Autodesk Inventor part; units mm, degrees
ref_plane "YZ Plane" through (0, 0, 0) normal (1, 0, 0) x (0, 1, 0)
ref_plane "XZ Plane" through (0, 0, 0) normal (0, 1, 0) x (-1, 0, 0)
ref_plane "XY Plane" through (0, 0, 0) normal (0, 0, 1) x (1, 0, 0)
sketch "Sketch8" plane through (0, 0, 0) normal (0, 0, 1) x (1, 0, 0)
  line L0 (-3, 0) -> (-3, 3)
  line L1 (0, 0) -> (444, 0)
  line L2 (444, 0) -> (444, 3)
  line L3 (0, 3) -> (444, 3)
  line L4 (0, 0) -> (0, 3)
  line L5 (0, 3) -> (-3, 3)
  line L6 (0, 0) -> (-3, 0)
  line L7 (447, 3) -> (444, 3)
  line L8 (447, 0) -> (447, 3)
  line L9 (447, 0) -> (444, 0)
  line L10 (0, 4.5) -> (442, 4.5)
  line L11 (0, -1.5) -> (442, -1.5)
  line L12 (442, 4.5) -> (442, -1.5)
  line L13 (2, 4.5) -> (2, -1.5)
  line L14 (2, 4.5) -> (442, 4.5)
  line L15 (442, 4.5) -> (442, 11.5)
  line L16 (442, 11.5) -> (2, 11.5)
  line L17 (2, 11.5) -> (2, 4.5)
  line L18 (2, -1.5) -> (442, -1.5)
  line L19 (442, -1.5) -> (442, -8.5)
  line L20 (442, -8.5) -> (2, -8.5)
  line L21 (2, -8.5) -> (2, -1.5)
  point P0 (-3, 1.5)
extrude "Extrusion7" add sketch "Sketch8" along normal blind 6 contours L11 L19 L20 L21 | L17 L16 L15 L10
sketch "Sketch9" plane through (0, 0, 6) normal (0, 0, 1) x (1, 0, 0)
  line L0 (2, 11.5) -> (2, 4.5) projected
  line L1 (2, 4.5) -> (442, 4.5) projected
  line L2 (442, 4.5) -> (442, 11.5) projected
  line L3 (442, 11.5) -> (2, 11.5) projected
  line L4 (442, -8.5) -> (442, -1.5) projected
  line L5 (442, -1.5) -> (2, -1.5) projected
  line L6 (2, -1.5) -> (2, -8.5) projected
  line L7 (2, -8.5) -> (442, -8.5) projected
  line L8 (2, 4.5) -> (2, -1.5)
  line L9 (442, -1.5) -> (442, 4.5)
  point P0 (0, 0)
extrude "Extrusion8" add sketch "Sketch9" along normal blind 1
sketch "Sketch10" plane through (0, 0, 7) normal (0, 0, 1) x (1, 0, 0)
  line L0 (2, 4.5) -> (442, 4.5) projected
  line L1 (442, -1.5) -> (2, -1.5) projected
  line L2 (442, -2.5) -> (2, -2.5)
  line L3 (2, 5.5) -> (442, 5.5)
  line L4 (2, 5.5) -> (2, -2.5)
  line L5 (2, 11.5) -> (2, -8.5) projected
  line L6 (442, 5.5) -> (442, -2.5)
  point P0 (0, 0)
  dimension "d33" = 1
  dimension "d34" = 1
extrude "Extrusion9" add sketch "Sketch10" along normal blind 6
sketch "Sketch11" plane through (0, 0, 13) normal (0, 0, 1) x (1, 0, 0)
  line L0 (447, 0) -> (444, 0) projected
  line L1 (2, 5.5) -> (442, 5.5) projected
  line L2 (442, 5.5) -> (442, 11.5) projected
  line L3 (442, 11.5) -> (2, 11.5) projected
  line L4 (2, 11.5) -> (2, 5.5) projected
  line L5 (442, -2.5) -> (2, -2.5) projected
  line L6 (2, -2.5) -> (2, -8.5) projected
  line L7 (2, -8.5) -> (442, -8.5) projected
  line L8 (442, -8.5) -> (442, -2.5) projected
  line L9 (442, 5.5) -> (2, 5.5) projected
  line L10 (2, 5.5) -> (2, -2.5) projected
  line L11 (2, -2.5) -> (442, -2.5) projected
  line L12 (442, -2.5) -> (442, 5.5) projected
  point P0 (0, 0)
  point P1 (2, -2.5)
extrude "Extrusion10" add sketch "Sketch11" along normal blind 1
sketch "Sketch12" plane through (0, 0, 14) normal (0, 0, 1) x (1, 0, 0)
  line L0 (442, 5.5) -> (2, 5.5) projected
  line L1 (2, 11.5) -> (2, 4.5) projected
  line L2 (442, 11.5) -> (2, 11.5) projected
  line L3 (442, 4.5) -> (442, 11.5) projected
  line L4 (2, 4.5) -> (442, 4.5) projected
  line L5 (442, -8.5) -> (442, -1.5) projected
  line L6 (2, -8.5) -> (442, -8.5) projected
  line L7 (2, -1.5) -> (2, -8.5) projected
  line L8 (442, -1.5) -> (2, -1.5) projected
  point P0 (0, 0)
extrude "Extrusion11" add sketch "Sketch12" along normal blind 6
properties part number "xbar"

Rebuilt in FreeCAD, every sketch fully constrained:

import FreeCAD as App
import Part
import Sketcher


def add_polygon(sketch, points):
    """Adds a closed chain of lines whose ends are joined by coincident constraints."""
    first, n = sketch.GeometryCount, len(points)
    for a, b in zip(points, points[1:] + points[:1]):
        sketch.addGeometry(Part.LineSegment(App.Vector(*a, 0), App.Vector(*b, 0)), False)
    for i in range(n):
        sketch.addConstraint(Sketcher.Constraint("Coincident", first + i, 2, first + (i + 1) % n, 1))

doc = App.newDocument("Part")
body = doc.addObject("PartDesign::Body", "Body")
body.AllowCompound = True

# Sketch on XY plane
sketch1 = doc.addObject("Sketcher::SketchObject", "Sketch")
body.addObject(sketch1)
sketch1.AttachmentSupport = (doc.XY_Plane, [""])
sketch1.MapMode = "FlatFace"
add_polygon(sketch1, [(442, -2), (2, -2), (2, -8), (442, -8)])  # lines 0-3
add_polygon(sketch1, [(2, 12), (2, 4), (442, 4), (442, 12)])  # lines 4-7
sketch1.addConstraint([
    Sketcher.Constraint("Horizontal", 0),
    Sketcher.Constraint("Vertical", 1),
    Sketcher.Constraint("Horizontal", 2),
    Sketcher.Constraint("Vertical", 3),
    Sketcher.Constraint("Vertical", 4),
    Sketcher.Constraint("Horizontal", 5),
    Sketcher.Constraint("Vertical", 6),
    Sketcher.Constraint("Horizontal", 7),
    Sketcher.Constraint("Vertical", 1, 2, 4, 2),
    Sketcher.Constraint("Vertical", 3, 2, 5, 2),
    Sketcher.Constraint("Equal", 3, 4),
    Sketcher.Constraint("DistanceX", 0, 2, 0, 1, 440.0),
    Sketcher.Constraint("DistanceY", 1, 2, 1, 1, 7.0),
    Sketcher.Constraint("DistanceX", -1, 1, 0, 2, 2.0),
    Sketcher.Constraint("DistanceY", 0, 2, 4, 2, 6.0),
    Sketcher.Constraint("DistanceY", 0, 2, -1, 1, 1.5),
])
pad1 = doc.addObject("PartDesign::Pad", "Pad")
body.addObject(pad1)
pad1.Profile = sketch1
pad1.Length = 6

# Sketch on XY plane
sketch2 = doc.addObject("Sketcher::SketchObject", "Sketch001")
body.addObject(sketch2)
sketch2.AttachmentSupport = (doc.XY_Plane, [""])
sketch2.MapMode = "FlatFace"
sketch2.AttachmentOffset = App.Placement(App.Vector(0, 0, 6), App.Rotation())
add_polygon(sketch2, [(442, 12), (2, 12), (2, -8), (442, -8)])  # lines 0-3
sketch2.addConstraint([
    Sketcher.Constraint("Horizontal", 0),
    Sketcher.Constraint("Vertical", 1),
    Sketcher.Constraint("Horizontal", 2),
    Sketcher.Constraint("Vertical", 3),
    Sketcher.Constraint("DistanceX", 0, 2, 0, 1, 440.0),
    Sketcher.Constraint("DistanceY", 1, 2, 1, 1, 20.0),
    Sketcher.Constraint("DistanceX", -1, 1, 0, 2, 2.0),
    Sketcher.Constraint("DistanceY", -1, 1, 0, 2, 11.5),
])
pad2 = doc.addObject("PartDesign::Pad", "Pad001")
body.addObject(pad2)
pad2.Profile = sketch2
pad2.Length = 1

# Sketch on XY plane
sketch3 = doc.addObject("Sketcher::SketchObject", "Sketch002")
body.addObject(sketch3)
sketch3.AttachmentSupport = (doc.XY_Plane, [""])
sketch3.MapMode = "FlatFace"
sketch3.AttachmentOffset = App.Placement(App.Vector(0, 0, 7), App.Rotation())
add_polygon(sketch3, [(2, 6), (2, -2), (442, -2), (442, 6)])  # lines 0-3
sketch3.addConstraint([
    Sketcher.Constraint("Vertical", 0),
    Sketcher.Constraint("Horizontal", 1),
    Sketcher.Constraint("Vertical", 2),
    Sketcher.Constraint("Horizontal", 3),
    Sketcher.Constraint("DistanceX", 1, 1, 1, 2, 440.0),
    Sketcher.Constraint("DistanceY", 0, 2, 0, 1, 8.0),
    Sketcher.Constraint("DistanceX", -1, 1, 0, 2, 2.0),
    Sketcher.Constraint("DistanceY", 0, 2, -1, 1, 2.5),
])
pad3 = doc.addObject("PartDesign::Pad", "Pad002")
body.addObject(pad3)
pad3.Profile = sketch3
pad3.Length = 6

# Sketch on XY plane
sketch4 = doc.addObject("Sketcher::SketchObject", "Sketch003")
body.addObject(sketch4)
sketch4.AttachmentSupport = (doc.XY_Plane, [""])
sketch4.MapMode = "FlatFace"
sketch4.AttachmentOffset = App.Placement(App.Vector(0, 0, 13), App.Rotation())
add_polygon(sketch4, [(2, 12), (2, -8), (442, -8), (442, 12)])  # lines 0-3
sketch4.addConstraint([
    Sketcher.Constraint("Vertical", 0),
    Sketcher.Constraint("Horizontal", 1),
    Sketcher.Constraint("Vertical", 2),
    Sketcher.Constraint("Horizontal", 3),
    Sketcher.Constraint("DistanceX", 1, 1, 1, 2, 440.0),
    Sketcher.Constraint("DistanceY", 0, 2, 0, 1, 20.0),
    Sketcher.Constraint("DistanceX", -1, 1, 0, 2, 2.0),
    Sketcher.Constraint("DistanceY", 0, 2, -1, 1, 8.5),
])
pad4 = doc.addObject("PartDesign::Pad", "Pad003")
body.addObject(pad4)
pad4.Profile = sketch4
pad4.Length = 1

# Sketch on XY plane
sketch5 = doc.addObject("Sketcher::SketchObject", "Sketch004")
body.addObject(sketch5)
sketch5.AttachmentSupport = (doc.XY_Plane, [""])
sketch5.MapMode = "FlatFace"
sketch5.AttachmentOffset = App.Placement(App.Vector(0, 0, 14), App.Rotation())
add_polygon(sketch5, [(442, 4), (442, 12), (2, 12), (2, 4)])  # lines 0-3
add_polygon(sketch5, [(2, -8), (442, -8), (442, -2), (2, -2)])  # lines 4-7
sketch5.addConstraint([
    Sketcher.Constraint("Vertical", 0),
    Sketcher.Constraint("Horizontal", 1),
    Sketcher.Constraint("Vertical", 2),
    Sketcher.Constraint("Horizontal", 3),
    Sketcher.Constraint("Horizontal", 4),
    Sketcher.Constraint("Vertical", 5),
    Sketcher.Constraint("Horizontal", 6),
    Sketcher.Constraint("Vertical", 7),
    Sketcher.Constraint("Vertical", 3, 2, 4, 2),
    Sketcher.Constraint("Vertical", 2, 2, 6, 2),
    Sketcher.Constraint("Equal", 2, 5),
    Sketcher.Constraint("DistanceX", 1, 2, 1, 1, 440.0),
    Sketcher.Constraint("DistanceY", 0, 1, 0, 2, 7.0),
    Sketcher.Constraint("DistanceX", -1, 1, 0, 2, 442.0),
    Sketcher.Constraint("DistanceY", 4, 2, 3, 2, 13.0),
    Sketcher.Constraint("DistanceY", -1, 1, 0, 2, 11.5),
])
pad5 = doc.addObject("PartDesign::Pad", "Pad004")
body.addObject(pad5)
pad5.Profile = sketch5
pad5.Length = 6

doc.recompute()
